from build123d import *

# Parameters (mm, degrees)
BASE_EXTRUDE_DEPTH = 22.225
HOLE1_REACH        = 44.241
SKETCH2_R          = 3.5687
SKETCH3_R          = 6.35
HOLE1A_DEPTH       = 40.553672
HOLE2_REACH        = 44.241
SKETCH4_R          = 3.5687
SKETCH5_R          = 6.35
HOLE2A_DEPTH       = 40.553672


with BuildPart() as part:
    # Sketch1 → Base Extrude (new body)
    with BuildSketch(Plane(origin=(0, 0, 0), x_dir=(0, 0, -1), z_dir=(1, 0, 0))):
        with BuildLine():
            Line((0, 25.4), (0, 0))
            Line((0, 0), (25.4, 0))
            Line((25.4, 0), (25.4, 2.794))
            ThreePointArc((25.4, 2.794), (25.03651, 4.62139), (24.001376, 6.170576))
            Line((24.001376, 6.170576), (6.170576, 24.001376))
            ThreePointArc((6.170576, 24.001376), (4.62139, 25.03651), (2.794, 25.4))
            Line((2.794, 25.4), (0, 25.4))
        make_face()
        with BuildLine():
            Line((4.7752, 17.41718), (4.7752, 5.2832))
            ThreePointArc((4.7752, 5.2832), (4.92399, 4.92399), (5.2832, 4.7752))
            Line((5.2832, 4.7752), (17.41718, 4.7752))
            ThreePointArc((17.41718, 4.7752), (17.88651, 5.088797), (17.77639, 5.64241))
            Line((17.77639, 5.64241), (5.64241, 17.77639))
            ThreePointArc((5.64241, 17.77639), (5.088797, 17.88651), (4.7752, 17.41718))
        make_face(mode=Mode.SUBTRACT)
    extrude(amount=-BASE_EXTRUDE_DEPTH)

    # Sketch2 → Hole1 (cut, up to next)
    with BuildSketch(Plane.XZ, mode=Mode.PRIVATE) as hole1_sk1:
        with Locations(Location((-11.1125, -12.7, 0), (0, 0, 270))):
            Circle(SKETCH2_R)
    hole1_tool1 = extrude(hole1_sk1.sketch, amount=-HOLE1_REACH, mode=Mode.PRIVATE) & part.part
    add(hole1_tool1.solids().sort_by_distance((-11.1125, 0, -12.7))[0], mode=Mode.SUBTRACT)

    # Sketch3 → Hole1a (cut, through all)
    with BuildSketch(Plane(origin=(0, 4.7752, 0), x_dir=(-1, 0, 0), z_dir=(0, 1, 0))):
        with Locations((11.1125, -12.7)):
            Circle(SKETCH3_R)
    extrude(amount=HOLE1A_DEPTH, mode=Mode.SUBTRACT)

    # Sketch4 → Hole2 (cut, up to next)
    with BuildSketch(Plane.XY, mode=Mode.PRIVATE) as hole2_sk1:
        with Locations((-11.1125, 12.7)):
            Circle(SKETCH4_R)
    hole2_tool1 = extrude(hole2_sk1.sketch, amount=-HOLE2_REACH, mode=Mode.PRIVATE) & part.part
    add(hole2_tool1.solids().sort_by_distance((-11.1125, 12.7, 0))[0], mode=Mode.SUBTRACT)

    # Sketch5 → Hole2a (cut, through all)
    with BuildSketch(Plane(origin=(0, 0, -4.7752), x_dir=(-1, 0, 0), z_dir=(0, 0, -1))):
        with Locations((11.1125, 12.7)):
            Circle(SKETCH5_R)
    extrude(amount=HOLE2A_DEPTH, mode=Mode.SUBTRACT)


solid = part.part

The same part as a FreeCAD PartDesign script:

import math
import FreeCAD as App
import Part
import Sketcher
Q = App.Units.Quantity

doc = App.newDocument("Part")
body = doc.addObject("PartDesign::Body", "Body")

sketch1 = doc.addObject("Sketcher::SketchObject", "Sketch")
body.addObject(sketch1)
sketch1.AttachmentSupport = (doc.YZ_Plane, [""])
sketch1.MapMode = "FlatFace"
sketch1.addGeometry(Part.LineSegment(App.Vector(25.4, 0, 0), App.Vector(0, 0, 0)), False)
sketch1.addGeometry(Part.LineSegment(App.Vector(0, 0, 0), App.Vector(0, -25.4, 0)), False)
sketch1.addGeometry(Part.LineSegment(App.Vector(0, -25.4, 0), App.Vector(2.8, -25.4, 0)), False)
sketch1.addGeometry(Part.ArcOfCircle(Part.Circle(App.Vector(2.8, -20.6, 0), App.Vector(0, 0, 1), 4.8), math.radians(-90), math.radians(-45)), False)
sketch1.addGeometry(Part.LineSegment(App.Vector(6.2, -24, 0), App.Vector(24, -6.2, 0)), False)
sketch1.addGeometry(Part.ArcOfCircle(Part.Circle(App.Vector(20.6, -2.8, 0), App.Vector(0, 0, 1), 4.8), math.radians(-45), math.radians(0)), False)
sketch1.addGeometry(Part.LineSegment(App.Vector(25.4, -2.8, 0), App.Vector(25.4, 0, 0)), False)
sketch1.addGeometry(Part.LineSegment(App.Vector(5.3, -4.8, 0), App.Vector(17.4, -4.8, 0)), False)
sketch1.addGeometry(Part.ArcOfCircle(Part.Circle(App.Vector(17.4, -5.3, 0), App.Vector(0, 0, 1), 0.5), math.radians(-45), math.radians(90)), False)
sketch1.addGeometry(Part.LineSegment(App.Vector(17.8, -5.6, 0), App.Vector(5.6, -17.8, 0)), False)
sketch1.addGeometry(Part.ArcOfCircle(Part.Circle(App.Vector(5.3, -17.4, 0), App.Vector(0, 0, 1), 0.5), math.radians(-180), math.radians(-45)), False)
sketch1.addGeometry(Part.LineSegment(App.Vector(4.8, -17.4, 0), App.Vector(4.8, -5.3, 0)), False)
sketch1.addGeometry(Part.ArcOfCircle(Part.Circle(App.Vector(5.3, -5.3, 0), App.Vector(0, 0, 1), 0.5), math.radians(90), math.radians(180)), False)
sketch1.addConstraint(Sketcher.Constraint("Coincident", 0, 2, 1, 1))
sketch1.addConstraint(Sketcher.Constraint("Coincident", 1, 2, 2, 1))
sketch1.addConstraint(Sketcher.Constraint("Tangent", 2, 2, 3, 1))
sketch1.addConstraint(Sketcher.Constraint("Tangent", 3, 2, 4, 1))
sketch1.addConstraint(Sketcher.Constraint("Tangent", 4, 2, 5, 1))
sketch1.addConstraint(Sketcher.Constraint("Tangent", 5, 2, 6, 1))
sketch1.addConstraint(Sketcher.Constraint("Coincident", 6, 2, 0, 1))
sketch1.addConstraint(Sketcher.Constraint("Coincident", 7, 2, 8, 2))
sketch1.addConstraint(Sketcher.Constraint("Tangent", 8, 1, 9, 1))
sketch1.addConstraint(Sketcher.Constraint("Tangent", 9, 2, 10, 2))
sketch1.addConstraint(Sketcher.Constraint("Coincident", 10, 1, 11, 1))
sketch1.addConstraint(Sketcher.Constraint("Tangent", 11, 2, 12, 2))
sketch1.addConstraint(Sketcher.Constraint("Tangent", 12, 1, 7, 1))
sketch1.addConstraint(Sketcher.Constraint("Horizontal", 0))
sketch1.addConstraint(Sketcher.Constraint("Vertical", 1))
sketch1.addConstraint(Sketcher.Constraint("Horizontal", 2))
sketch1.addConstraint(Sketcher.Constraint("Vertical", 6))
sketch1.addConstraint(Sketcher.Constraint("Horizontal", 7))
sketch1.addConstraint(Sketcher.Constraint("Vertical", 11))
sketch1.addConstraint(Sketcher.Constraint("Coincident", 0, 2, -1, 1))
sketch1.addConstraint(Sketcher.Constraint("Equal", 3, 5))
sketch1.addConstraint(Sketcher.Constraint("Equal", 8, 10))
sketch1.addConstraint(Sketcher.Constraint("Equal", 10, 12))
sketch1.addConstraint(Sketcher.Constraint("Parallel", 4, 9))
sketch1.addConstraint(Sketcher.Constraint("Vertical", 8, 3, 7, 2))
sketch1.addConstraint(Sketcher.Constraint("Equal", 0, 1))
sketch1.addConstraint(Sketcher.Constraint("Equal", 2, 6))
sketch1.addConstraint(Sketcher.Constraint("Equal", 7, 11))
sketch1.addConstraint(Sketcher.Constraint("DistanceX", 0, 2, 0, 1, Q("1 in")))
sketch1.addConstraint(Sketcher.Constraint("Radius", 8, Q("0.02 in")))
sketch1.addConstraint(Sketcher.Constraint("DistanceX", 2, 1, 2, 2, Q("0.11 in")))
sketch1.addConstraint(Sketcher.Constraint("DistanceY", 8, 3, -1, 1, Q("0.208 in")))
sketch1.addConstraint(Sketcher.Constraint("DistanceX", -1, 1, 10, 3, Q("0.208 in")))
sketch1.addConstraint(Sketcher.Constraint("Radius", 3, 4.775192))
sketch1.addConstraint(Sketcher.Constraint("DistanceX", 7, 1, 7, 2, 12.13398))
pad1 = doc.addObject("PartDesign::Pad", "Pad")
body.addObject(pad1)
pad1.Profile = sketch1
pad1.Length = Q("0.875 in")
pad1.Reversed = True

sketch2 = doc.addObject("Sketcher::SketchObject", "Sketch001")
body.addObject(sketch2)
sketch2.AttachmentSupport = (doc.XZ_Plane, [""])
sketch2.MapMode = "FlatFace"
sketch2.addGeometry(Part.Circle(App.Vector(-11.1, -12.7, 0), App.Vector(0, 0, 1), 3.6), False)
sketch2.addConstraint(Sketcher.Constraint("Diameter", 0, Q("0.281 in")))
sketch2.addConstraint(Sketcher.Constraint("DistanceY", 0, 3, -1, 1, Q("0.5 in")))
sketch2.addConstraint(Sketcher.Constraint("DistanceX", 0, 3, -1, 1, Q("0.4375 in")))
pocket1 = doc.addObject("PartDesign::Pocket", "Pocket")
body.addObject(pocket1)
pocket1.Profile = sketch2
pocket1.Type = "UpToFirst"

sketch3 = doc.addObject("Sketcher::SketchObject", "Sketch002")
body.addObject(sketch3)
sketch3.AttachmentSupport = (doc.XZ_Plane, [""])
sketch3.MapMode = "FlatFace"
sketch3.AttachmentOffset = App.Placement(App.Vector(0, 0, -0.188 * 25.4), App.Rotation())
sketch3.addGeometry(Part.Circle(App.Vector(-11, -13, 0), App.Vector(0, 0, 1), 6), False)
sketch3.addConstraint(Sketcher.Constraint("Diameter", 0, Q("0.5 in")))
sketch3.addConstraint(Sketcher.Constraint("DistanceY", 0, 3, -1, 1, Q("0.5 in")))
sketch3.addConstraint(Sketcher.Constraint("DistanceX", 0, 3, -1, 1, Q("0.4375 in")))
pocket2 = doc.addObject("PartDesign::Pocket", "Pocket001")
body.addObject(pocket2)
pocket2.Profile = sketch3
pocket2.Type = "ThroughAll"

sketch4 = doc.addObject("Sketcher::SketchObject", "Sketch003")
body.addObject(sketch4)
sketch4.AttachmentSupport = (doc.XY_Plane, [""])
sketch4.MapMode = "FlatFace"
sketch4.addGeometry(Part.Circle(App.Vector(-11.1, 12.7, 0), App.Vector(0, 0, 1), 3.6), False)
sketch4.addConstraint(Sketcher.Constraint("Diameter", 0, Q("0.281 in")))
sketch4.addConstraint(Sketcher.Constraint("DistanceY", -1, 1, 0, 3, Q("0.5 in")))
sketch4.addConstraint(Sketcher.Constraint("DistanceX", 0, 3, -1, 1, Q("0.4375 in")))
pocket3 = doc.addObject("PartDesign::Pocket", "Pocket002")
body.addObject(pocket3)
pocket3.Profile = sketch4
pocket3.Type = "UpToFirst"

sketch5 = doc.addObject("Sketcher::SketchObject", "Sketch004")
body.addObject(sketch5)
sketch5.AttachmentSupport = (doc.XY_Plane, [""])
sketch5.MapMode = "FlatFace"
sketch5.AttachmentOffset = App.Placement(App.Vector(0, 0, -0.188 * 25.4), App.Rotation())
sketch5.addGeometry(Part.Circle(App.Vector(-11, 13, 0), App.Vector(0, 0, 1), 6), False)
sketch5.addConstraint(Sketcher.Constraint("Diameter", 0, Q("0.5 in")))
sketch5.addConstraint(Sketcher.Constraint("DistanceY", -1, 1, 0, 3, Q("0.5 in")))
sketch5.addConstraint(Sketcher.Constraint("DistanceX", 0, 3, -1, 1, Q("0.4375 in")))
pocket4 = doc.addObject("PartDesign::Pocket", "Pocket003")
body.addObject(pocket4)
pocket4.Profile = sketch5
pocket4.Type = "ThroughAll"

doc.recompute()
